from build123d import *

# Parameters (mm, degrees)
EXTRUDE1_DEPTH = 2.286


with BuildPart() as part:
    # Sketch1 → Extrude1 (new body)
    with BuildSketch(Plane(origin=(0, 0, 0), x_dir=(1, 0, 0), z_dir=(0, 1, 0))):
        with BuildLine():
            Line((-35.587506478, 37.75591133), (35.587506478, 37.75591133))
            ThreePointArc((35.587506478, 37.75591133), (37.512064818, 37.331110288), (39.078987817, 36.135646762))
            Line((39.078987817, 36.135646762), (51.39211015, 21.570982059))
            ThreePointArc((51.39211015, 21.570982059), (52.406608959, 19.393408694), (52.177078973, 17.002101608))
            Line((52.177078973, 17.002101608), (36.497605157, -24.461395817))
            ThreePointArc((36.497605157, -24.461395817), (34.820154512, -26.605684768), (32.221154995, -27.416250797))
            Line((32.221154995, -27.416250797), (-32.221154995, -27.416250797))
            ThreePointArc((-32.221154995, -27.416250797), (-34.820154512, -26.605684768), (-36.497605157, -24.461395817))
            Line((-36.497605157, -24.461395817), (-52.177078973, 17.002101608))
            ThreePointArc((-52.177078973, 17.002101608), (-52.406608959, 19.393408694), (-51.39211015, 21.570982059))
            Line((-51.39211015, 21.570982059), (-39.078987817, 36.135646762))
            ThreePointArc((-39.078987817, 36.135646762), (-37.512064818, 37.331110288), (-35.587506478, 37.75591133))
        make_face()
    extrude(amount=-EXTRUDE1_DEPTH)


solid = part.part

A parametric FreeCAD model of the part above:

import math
import FreeCAD as App
import Part
import Sketcher
Q = App.Units.Quantity

doc = App.newDocument("Part")
body = doc.addObject("PartDesign::Body", "Body")

# Sketch on XZ plane
sketch1 = body.newObject("Sketcher::SketchObject", "Sketch")
sketch1.AttachmentSupport = (doc.getObject("XZ_Plane"), [""])
sketch1.MapMode = "FlatFace"
sketch1.addGeometry([
    Part.LineSegment(App.Vector(35.587506, -37.755911, 0), App.Vector(-35.587506, -37.755911, 0)),  # 0
    Part.ArcOfCircle(Part.Circle(App.Vector(-35.587506, -33.183911, 0), App.Vector(0, 0, 1), 4.572), math.radians(-139.788467), math.radians(-90)),  # 1
    Part.LineSegment(App.Vector(-39.078988, -36.135647, 0), App.Vector(-51.39211, -21.570982, 0)),  # 2
    Part.ArcOfCircle(Part.Circle(App.Vector(-47.900629, -18.619247, 0), App.Vector(0, 0, 1), 4.572), math.radians(159.285825), math.radians(220.211533)),  # 3
    Part.LineSegment(App.Vector(-52.177079, -17.002102, 0), App.Vector(-36.497605, 24.461396, 0)),  # 4
    Part.ArcOfCircle(Part.Circle(App.Vector(-32.221155, 22.844251, 0), App.Vector(0, 0, 1), 4.572), math.radians(90), math.radians(159.285825)),  # 5
    Part.LineSegment(App.Vector(-32.221155, 27.416251, 0), App.Vector(32.221155, 27.416251, 0)),  # 6
    Part.ArcOfCircle(Part.Circle(App.Vector(32.221155, 22.844251, 0), App.Vector(0, 0, 1), 4.572), math.radians(20.714175), math.radians(90)),  # 7
    Part.LineSegment(App.Vector(36.497605, 24.461396, 0), App.Vector(52.177079, -17.002102, 0)),  # 8
    Part.ArcOfCircle(Part.Circle(App.Vector(47.900629, -18.619247, 0), App.Vector(0, 0, 1), 4.572), math.radians(-40.211533), math.radians(20.714175)),  # 9
    Part.LineSegment(App.Vector(51.39211, -21.570982, 0), App.Vector(39.078988, -36.135647, 0)),  # 10
    Part.ArcOfCircle(Part.Circle(App.Vector(35.587506, -33.183911, 0), App.Vector(0, 0, 1), 4.572), math.radians(-90), math.radians(-40.211533)),  # 11
], False)
sketch1.addConstraint([
    Sketcher.Constraint("Coincident", 0, 2, 1, 2),
    Sketcher.Constraint("Coincident", 1, 1, 2, 1),
    Sketcher.Constraint("Coincident", 2, 2, 3, 2),
    Sketcher.Constraint("Coincident", 3, 1, 4, 1),
    Sketcher.Constraint("Coincident", 4, 2, 5, 2),
    Sketcher.Constraint("Coincident", 5, 1, 6, 1),
    Sketcher.Constraint("Coincident", 6, 2, 7, 2),
    Sketcher.Constraint("Coincident", 7, 1, 8, 1),
    Sketcher.Constraint("Coincident", 8, 2, 9, 2),
    Sketcher.Constraint("Coincident", 9, 1, 10, 1),
    Sketcher.Constraint("Coincident", 10, 2, 11, 2),
    Sketcher.Constraint("Coincident", 11, 1, 0, 1),
    Sketcher.Constraint("Horizontal", 0),
    Sketcher.Constraint("Horizontal", 6),
    Sketcher.Constraint("Radius", 1, Q("0.18 in")),
    Sketcher.Constraint("Radius", 3, Q("0.18 in")),
    Sketcher.Constraint("Radius", 5, Q("0.18 in")),
    Sketcher.Constraint("Radius", 7, Q("0.18 in")),
    Sketcher.Constraint("Radius", 9, Q("0.18 in")),
    Sketcher.Constraint("Radius", 11, Q("0.18 in")),
    Sketcher.Constraint("DistanceX", 6, 1, 6, 2, Q("64.44231 mm")),
    Sketcher.Constraint("DistanceY", 3, 1, -1, 1, Q("17.002102 mm")),
    Sketcher.Constraint("DistanceY", 8, 2, -1, 1, Q("17.002102 mm")),
    Sketcher.Constraint("DistanceY", 1, 1, 3, 3, Q("17.5164 mm")),
    Sketcher.Constraint("DistanceX", 4, 2, 1, 3, Q("0.910099 mm")),
    Sketcher.Constraint("DistanceX", 11, 3, 7, 1, Q("0.910099 mm")),
    Sketcher.Constraint("DistanceY", 10, 2, 9, 3, Q("17.5164 mm")),
    Sketcher.Constraint("DistanceX", 0, 2, 0, 1, Q("71.175013 mm")),
    Sketcher.Constraint("DistanceY", 1, 3, -1, 1, Q("33.183911 mm")),
    Sketcher.Constraint("DistanceX", 3, 3, -1, 1, Q("47.900629 mm")),
    Sketcher.Constraint("DistanceY", -1, 1, 5, 3, Q("22.844251 mm")),
    Sketcher.Constraint("DistanceX", -1, 1, 9, 3, Q("47.900629 mm")),
    Sketcher.Constraint("DistanceX", 2, 2, -1, 1, Q("51.39211 mm")),
    Sketcher.Constraint("DistanceX", 3, 1, -1, 1, Q("52.177079 mm")),
    Sketcher.Constraint("DistanceX", -1, 1, 8, 2, Q("52.177079 mm")),
    Sketcher.Constraint("DistanceX", -1, 1, 9, 1, Q("51.39211 mm")),
    Sketcher.Constraint("DistanceX", 1, 3, 5, 3, Q("3.366351 mm")),
    Sketcher.Constraint("DistanceX", 5, 3, 7, 3, Q("64.44231 mm")),
    Sketcher.Constraint("DistanceX", 7, 3, 11, 3, Q("3.366351 mm")),
    Sketcher.Constraint("DistanceX", 0, 2, 5, 3, Q("3.366351 mm")),
    Sketcher.Constraint("DistanceX", 3, 3, 1, 1, Q("8.821641 mm")),
    Sketcher.Constraint("DistanceX", 4, 2, 5, 1, Q("4.27645 mm")),
])
pad1 = body.newObject("PartDesign::Pad", "Pad")
pad1.Profile = sketch1
pad1.Length = Q("0.09 in")

doc.recompute()
